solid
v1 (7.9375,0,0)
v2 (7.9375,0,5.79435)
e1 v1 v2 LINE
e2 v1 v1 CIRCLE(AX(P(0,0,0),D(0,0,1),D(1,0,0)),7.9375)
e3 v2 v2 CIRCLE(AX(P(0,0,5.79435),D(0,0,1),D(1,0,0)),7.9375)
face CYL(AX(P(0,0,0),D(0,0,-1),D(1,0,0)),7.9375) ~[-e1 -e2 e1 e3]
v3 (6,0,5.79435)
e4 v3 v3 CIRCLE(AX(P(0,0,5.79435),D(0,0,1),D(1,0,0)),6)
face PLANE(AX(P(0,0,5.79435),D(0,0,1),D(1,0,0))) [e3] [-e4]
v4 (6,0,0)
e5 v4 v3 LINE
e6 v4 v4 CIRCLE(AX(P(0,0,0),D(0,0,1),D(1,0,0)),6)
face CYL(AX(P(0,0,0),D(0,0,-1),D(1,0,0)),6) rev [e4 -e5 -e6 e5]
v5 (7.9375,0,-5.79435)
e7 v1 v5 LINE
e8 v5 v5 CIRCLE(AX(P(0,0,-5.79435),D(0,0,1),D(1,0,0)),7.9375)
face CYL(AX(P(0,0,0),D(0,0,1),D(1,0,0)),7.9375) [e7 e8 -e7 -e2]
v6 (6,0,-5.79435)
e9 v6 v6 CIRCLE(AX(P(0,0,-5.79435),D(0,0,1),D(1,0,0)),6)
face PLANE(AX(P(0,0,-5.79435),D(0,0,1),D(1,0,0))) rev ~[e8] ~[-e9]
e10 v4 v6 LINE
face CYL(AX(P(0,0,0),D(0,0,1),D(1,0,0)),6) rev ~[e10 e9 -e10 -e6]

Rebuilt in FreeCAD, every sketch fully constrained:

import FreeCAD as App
import Part
import Sketcher

doc = App.newDocument("Part")
params = doc.addObject("Spreadsheet::Sheet", "Params")
for row, (alias, value) in enumerate([
    ("sketch1_diameter", "12 mm"),
    ("pad1_length", "11.5887 mm"),
], start=1):
    params.set(f"A{row}", alias)
    params.set(f"B{row}", "=" + value)
    params.setAlias(f"B{row}", alias)

body = doc.addObject("PartDesign::Body", "Body")

# Sketch on XY plane
sketch1 = body.newObject("Sketcher::SketchObject", "Sketch")
sketch1.AttachmentSupport = (doc.getObject("XY_Plane"), [""])
sketch1.MapMode = "FlatFace"
sketch1.addGeometry(Part.Circle(App.Vector(0, 0, 0), App.Vector(0, 0, 1), 7.9375), False)
sketch1.addGeometry(Part.Circle(App.Vector(0, 0, 0), App.Vector(0, 0, 1), 6), False)
sketch1.addConstraint(Sketcher.Constraint("Coincident", 0, 3, -1, 1))
sketch1.addConstraint(Sketcher.Constraint("Coincident", 1, 3, -1, 1))
sketch1.addConstraint(Sketcher.Constraint("Diameter", 1, 12.0))
sketch1.addConstraint(Sketcher.Constraint("Diameter", 0, 15.875))
sketch1.setExpression("Constraints[2]", "Params.sketch1_diameter")
pad1 = body.newObject("PartDesign::Pad", "Pad")
pad1.Profile = sketch1
pad1.setExpression("Length", "Params.pad1_length")
pad1.Midplane = True

doc.recompute()
